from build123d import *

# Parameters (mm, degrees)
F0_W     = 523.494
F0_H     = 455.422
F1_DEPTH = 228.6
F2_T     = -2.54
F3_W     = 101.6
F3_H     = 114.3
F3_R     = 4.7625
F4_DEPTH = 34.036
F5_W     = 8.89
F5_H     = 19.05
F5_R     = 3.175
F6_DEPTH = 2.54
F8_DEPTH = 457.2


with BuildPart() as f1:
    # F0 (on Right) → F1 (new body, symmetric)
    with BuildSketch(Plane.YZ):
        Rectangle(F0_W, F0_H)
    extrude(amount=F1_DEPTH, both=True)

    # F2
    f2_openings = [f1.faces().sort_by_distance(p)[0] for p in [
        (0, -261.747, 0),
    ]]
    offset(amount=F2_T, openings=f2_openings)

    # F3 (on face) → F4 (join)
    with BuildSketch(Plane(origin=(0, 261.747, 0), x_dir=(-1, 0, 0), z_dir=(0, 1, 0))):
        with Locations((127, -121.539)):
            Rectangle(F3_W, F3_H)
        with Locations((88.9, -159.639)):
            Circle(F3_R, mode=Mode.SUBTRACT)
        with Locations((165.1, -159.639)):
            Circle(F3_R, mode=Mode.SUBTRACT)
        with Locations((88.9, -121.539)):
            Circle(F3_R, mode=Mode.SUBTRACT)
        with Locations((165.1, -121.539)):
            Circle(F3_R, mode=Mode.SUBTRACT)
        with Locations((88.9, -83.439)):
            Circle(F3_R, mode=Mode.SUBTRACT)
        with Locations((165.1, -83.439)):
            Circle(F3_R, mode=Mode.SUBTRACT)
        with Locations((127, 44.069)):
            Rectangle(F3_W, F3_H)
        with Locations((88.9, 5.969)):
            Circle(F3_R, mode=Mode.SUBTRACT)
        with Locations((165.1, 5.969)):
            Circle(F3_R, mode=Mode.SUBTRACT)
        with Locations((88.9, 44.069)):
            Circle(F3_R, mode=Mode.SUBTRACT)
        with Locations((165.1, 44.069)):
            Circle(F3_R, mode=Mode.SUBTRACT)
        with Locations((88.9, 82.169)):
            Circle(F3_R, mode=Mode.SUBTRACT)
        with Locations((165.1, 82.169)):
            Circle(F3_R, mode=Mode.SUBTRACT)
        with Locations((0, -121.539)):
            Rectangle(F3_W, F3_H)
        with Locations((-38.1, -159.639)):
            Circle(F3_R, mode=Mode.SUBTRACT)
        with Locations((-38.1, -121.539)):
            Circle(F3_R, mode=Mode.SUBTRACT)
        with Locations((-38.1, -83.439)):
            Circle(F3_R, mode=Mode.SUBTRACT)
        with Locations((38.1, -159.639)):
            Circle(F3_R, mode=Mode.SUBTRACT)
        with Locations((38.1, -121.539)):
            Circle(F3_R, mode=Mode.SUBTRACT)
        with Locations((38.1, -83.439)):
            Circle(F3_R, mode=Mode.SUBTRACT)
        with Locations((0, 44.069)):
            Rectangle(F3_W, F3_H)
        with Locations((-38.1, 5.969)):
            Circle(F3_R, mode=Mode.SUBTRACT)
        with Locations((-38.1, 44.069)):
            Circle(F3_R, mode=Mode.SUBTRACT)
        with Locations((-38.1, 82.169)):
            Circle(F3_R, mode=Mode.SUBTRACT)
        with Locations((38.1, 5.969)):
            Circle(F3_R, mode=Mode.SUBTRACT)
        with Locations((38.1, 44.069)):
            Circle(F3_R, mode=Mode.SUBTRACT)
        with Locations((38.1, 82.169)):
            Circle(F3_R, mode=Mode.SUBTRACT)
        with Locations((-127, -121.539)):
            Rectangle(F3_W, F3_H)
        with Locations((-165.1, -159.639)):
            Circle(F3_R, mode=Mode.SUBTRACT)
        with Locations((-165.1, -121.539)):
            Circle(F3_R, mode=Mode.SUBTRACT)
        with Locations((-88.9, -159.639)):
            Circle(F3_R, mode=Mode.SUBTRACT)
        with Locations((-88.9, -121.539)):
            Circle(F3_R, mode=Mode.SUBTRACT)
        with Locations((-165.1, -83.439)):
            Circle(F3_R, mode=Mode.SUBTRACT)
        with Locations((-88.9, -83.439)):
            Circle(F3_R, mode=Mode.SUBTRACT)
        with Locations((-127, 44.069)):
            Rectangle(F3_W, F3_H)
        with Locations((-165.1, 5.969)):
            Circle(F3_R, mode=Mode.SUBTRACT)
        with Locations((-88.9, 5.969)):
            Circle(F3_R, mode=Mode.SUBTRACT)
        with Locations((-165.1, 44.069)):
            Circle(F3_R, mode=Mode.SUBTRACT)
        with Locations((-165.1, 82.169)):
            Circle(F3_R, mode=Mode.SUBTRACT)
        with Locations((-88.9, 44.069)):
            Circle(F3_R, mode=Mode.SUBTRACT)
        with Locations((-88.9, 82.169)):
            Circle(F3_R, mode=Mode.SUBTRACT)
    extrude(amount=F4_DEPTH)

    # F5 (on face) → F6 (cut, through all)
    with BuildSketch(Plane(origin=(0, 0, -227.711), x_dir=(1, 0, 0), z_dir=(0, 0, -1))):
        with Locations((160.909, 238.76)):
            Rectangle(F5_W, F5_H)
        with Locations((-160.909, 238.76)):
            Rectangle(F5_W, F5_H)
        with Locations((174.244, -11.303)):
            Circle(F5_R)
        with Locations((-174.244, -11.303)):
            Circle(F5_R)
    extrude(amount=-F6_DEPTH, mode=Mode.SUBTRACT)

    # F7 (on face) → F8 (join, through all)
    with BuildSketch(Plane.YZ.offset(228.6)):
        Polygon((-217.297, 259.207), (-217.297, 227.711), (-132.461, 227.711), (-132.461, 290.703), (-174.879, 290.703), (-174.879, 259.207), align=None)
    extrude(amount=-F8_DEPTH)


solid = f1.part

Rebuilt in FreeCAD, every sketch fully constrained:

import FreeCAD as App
import Part
import Sketcher
from FreeCAD import Vector
Q = App.Units.Quantity


def faces_at(feature, points):
    """Names of the faces that lie closest to the given points."""
    faces = feature.Shape.Faces
    near = lambda p: min(range(len(faces)), key=lambda i: faces[i].distToShape(Part.Vertex(*p))[0])
    return sorted({f"Face{near(p) + 1}" for p in points})


def add_polygon(sketch, points):
    """Adds a closed chain of lines whose ends are joined by coincident constraints."""
    first, n = sketch.GeometryCount, len(points)
    for a, b in zip(points, points[1:] + points[:1]):
        sketch.addGeometry(Part.LineSegment(App.Vector(*a, 0), App.Vector(*b, 0)), False)
    for i in range(n):
        sketch.addConstraint(Sketcher.Constraint("Coincident", first + i, 2, first + (i + 1) % n, 1))

doc = App.newDocument("Part")
body = doc.addObject("PartDesign::Body", "Body")

sketch1 = body.newObject("Sketcher::SketchObject", "Sketch")
sketch1.AttachmentSupport = (doc.getObject("YZ_Plane"), [""])
sketch1.MapMode = "FlatFace"
add_polygon(sketch1, [(-262, 228), (-262, -228), (262, -228), (262, 228)])
sketch1.addConstraint(Sketcher.Constraint("Vertical", 0))
sketch1.addConstraint(Sketcher.Constraint("Horizontal", 1))
sketch1.addConstraint(Sketcher.Constraint("Vertical", 2))
sketch1.addConstraint(Sketcher.Constraint("Horizontal", 3))
sketch1.addConstraint(Sketcher.Constraint("Symmetric", 0, 2, 2, 2, -1, 1))
sketch1.addConstraint(Sketcher.Constraint("DistanceX", 1, 1, 1, 2, Q("20.61 in")))
sketch1.addConstraint(Sketcher.Constraint("DistanceY", 0, 2, 0, 1, Q("17.93 in")))
pad1 = body.newObject("PartDesign::Pad", "Pad")
pad1.Profile = sketch1
pad1.Length = Q("18 in")
pad1.Midplane = True
doc.recompute()

thickness = body.newObject("PartDesign::Thickness", "Thickness")
thickness.Base = (pad1, faces_at(pad1, [(0, -261.747, 0)]))
thickness.Value = Q("0.1 in")
thickness.Reversed = True
thickness.Join = "Arc"

sketch2 = body.newObject("Sketcher::SketchObject", "Sketch001")
sketch2.AttachmentSupport = (doc.getObject("XZ_Plane"), [""])
sketch2.MapMode = "FlatFace"
sketch2.AttachmentOffset = App.Placement(Vector(0, 0, -10.305 * 25.4), App.Rotation())
add_polygon(sketch2, [(-76.2, -64.4), (-76.2, -178.7), (-177.8, -178.7), (-177.8, -64.4)])
sketch2.addGeometry(Part.Circle(Vector(-88.9, -159.6, 0), Vector(0, 0, 1), 4.8), False)
sketch2.addGeometry(Part.Circle(Vector(-165.1, -159.6, 0), Vector(0, 0, 1), 4.8), False)
sketch2.addGeometry(Part.Circle(Vector(-88.9, -121.5, 0), Vector(0, 0, 1), 4.8), False)
sketch2.addGeometry(Part.Circle(Vector(-88.9, -83.4, 0), Vector(0, 0, 1), 4.8), False)
sketch2.addGeometry(Part.Circle(Vector(-165.1, -121.5, 0), Vector(0, 0, 1), 4.8), False)
sketch2.addGeometry(Part.Circle(Vector(-165.1, -83.4, 0), Vector(0, 0, 1), 4.8), False)
add_polygon(sketch2, [(-76.2, 101.2), (-76.2, -13.1), (-177.8, -13.1), (-177.8, 101.2)])
sketch2.addGeometry(Part.Circle(Vector(-88.9, 6, 0), Vector(0, 0, 1), 4.8), False)
sketch2.addGeometry(Part.Circle(Vector(-165.1, 6, 0), Vector(0, 0, 1), 4.8), False)
sketch2.addGeometry(Part.Circle(Vector(-88.9, 44.1, 0), Vector(0, 0, 1), 4.8), False)
sketch2.addGeometry(Part.Circle(Vector(-88.9, 82.2, 0), Vector(0, 0, 1), 4.8), False)
sketch2.addGeometry(Part.Circle(Vector(-165.1, 44.1, 0), Vector(0, 0, 1), 4.8), False)
sketch2.addGeometry(Part.Circle(Vector(-165.1, 82.2, 0), Vector(0, 0, 1), 4.8), False)
add_polygon(sketch2, [(50.8, -64.4), (50.8, -178.7), (-50.8, -178.7), (-50.8, -64.4)])
sketch2.addGeometry(Part.Circle(Vector(38.1, -159.6, 0), Vector(0, 0, 1), 4.8), False)
sketch2.addGeometry(Part.Circle(Vector(-38.1, -159.6, 0), Vector(0, 0, 1), 4.8), False)
sketch2.addGeometry(Part.Circle(Vector(38.1, -121.5, 0), Vector(0, 0, 1), 4.8), False)
sketch2.addGeometry(Part.Circle(Vector(38.1, -83.4, 0), Vector(0, 0, 1), 4.8), False)
sketch2.addGeometry(Part.Circle(Vector(-38.1, -121.5, 0), Vector(0, 0, 1), 4.8), False)
sketch2.addGeometry(Part.Circle(Vector(-38.1, -83.4, 0), Vector(0, 0, 1), 4.8), False)
add_polygon(sketch2, [(50.8, 101.2), (50.8, -13.1), (-50.8, -13.1), (-50.8, 101.2)])
sketch2.addGeometry(Part.Circle(Vector(38.1, 6, 0), Vector(0, 0, 1), 4.8), False)
sketch2.addGeometry(Part.Circle(Vector(-38.1, 6, 0), Vector(0, 0, 1), 4.8), False)
sketch2.addGeometry(Part.Circle(Vector(38.1, 44.1, 0), Vector(0, 0, 1), 4.8), False)
sketch2.addGeometry(Part.Circle(Vector(38.1, 82.2, 0), Vector(0, 0, 1), 4.8), False)
sketch2.addGeometry(Part.Circle(Vector(-38.1, 44.1, 0), Vector(0, 0, 1), 4.8), False)
sketch2.addGeometry(Part.Circle(Vector(-38.1, 82.2, 0), Vector(0, 0, 1), 4.8), False)
add_polygon(sketch2, [(177.8, -64.4), (177.8, -178.7), (76.2, -178.7), (76.2, -64.4)])
sketch2.addGeometry(Part.Circle(Vector(165.1, -159.6, 0), Vector(0, 0, 1), 4.8), False)
sketch2.addGeometry(Part.Circle(Vector(88.9, -159.6, 0), Vector(0, 0, 1), 4.8), False)
sketch2.addGeometry(Part.Circle(Vector(165.1, -121.5, 0), Vector(0, 0, 1), 4.8), False)
sketch2.addGeometry(Part.Circle(Vector(165.1, -83.4, 0), Vector(0, 0, 1), 4.8), False)
sketch2.addGeometry(Part.Circle(Vector(88.9, -121.5, 0), Vector(0, 0, 1), 4.8), False)
sketch2.addGeometry(Part.Circle(Vector(88.9, -83.4, 0), Vector(0, 0, 1), 4.8), False)
add_polygon(sketch2, [(177.8, 101.2), (177.8, -13.1), (76.2, -13.1), (76.2, 101.2)])
sketch2.addGeometry(Part.Circle(Vector(165.1, 6, 0), Vector(0, 0, 1), 4.8), False)
sketch2.addGeometry(Part.Circle(Vector(88.9, 6, 0), Vector(0, 0, 1), 4.8), False)
sketch2.addGeometry(Part.Circle(Vector(165.1, 44.1, 0), Vector(0, 0, 1), 4.8), False)
sketch2.addGeometry(Part.Circle(Vector(165.1, 82.2, 0), Vector(0, 0, 1), 4.8), False)
sketch2.addGeometry(Part.Circle(Vector(88.9, 44.1, 0), Vector(0, 0, 1), 4.8), False)
sketch2.addGeometry(Part.Circle(Vector(88.9, 82.2, 0), Vector(0, 0, 1), 4.8), False)
sketch2.addConstraint(Sketcher.Constraint("Vertical", 0))
sketch2.addConstraint(Sketcher.Constraint("Horizontal", 1))
sketch2.addConstraint(Sketcher.Constraint("Vertical", 2))
sketch2.addConstraint(Sketcher.Constraint("Horizontal", 3))
sketch2.addConstraint(Sketcher.Constraint("Vertical", 10))
sketch2.addConstraint(Sketcher.Constraint("Horizontal", 11))
sketch2.addConstraint(Sketcher.Constraint("Vertical", 12))
sketch2.addConstraint(Sketcher.Constraint("Horizontal", 13))
sketch2.addConstraint(Sketcher.Constraint("Vertical", 20))
sketch2.addConstraint(Sketcher.Constraint("Horizontal", 21))
sketch2.addConstraint(Sketcher.Constraint("Vertical", 22))
sketch2.addConstraint(Sketcher.Constraint("Horizontal", 23))
sketch2.addConstraint(Sketcher.Constraint("Vertical", 30))
sketch2.addConstraint(Sketcher.Constraint("Horizontal", 31))
sketch2.addConstraint(Sketcher.Constraint("Vertical", 32))
sketch2.addConstraint(Sketcher.Constraint("Horizontal", 33))
sketch2.addConstraint(Sketcher.Constraint("Vertical", 40))
sketch2.addConstraint(Sketcher.Constraint("Horizontal", 41))
sketch2.addConstraint(Sketcher.Constraint("Vertical", 42))
sketch2.addConstraint(Sketcher.Constraint("Horizontal", 43))
sketch2.addConstraint(Sketcher.Constraint("Vertical", 50))
sketch2.addConstraint(Sketcher.Constraint("Horizontal", 51))
sketch2.addConstraint(Sketcher.Constraint("Vertical", 52))
sketch2.addConstraint(Sketcher.Constraint("Horizontal", 53))
sketch2.addConstraint(Sketcher.Constraint("Equal", 4, 5))
sketch2.addConstraint(Sketcher.Constraint("Equal", 5, 6))
sketch2.addConstraint(Sketcher.Constraint("Equal", 6, 7))
sketch2.addConstraint(Sketcher.Constraint("Equal", 7, 8))
sketch2.addConstraint(Sketcher.Constraint("Equal", 8, 9))
sketch2.addConstraint(Sketcher.Constraint("Equal", 9, 14))
sketch2.addConstraint(Sketcher.Constraint("Equal", 14, 15))
sketch2.addConstraint(Sketcher.Constraint("Equal", 15, 16))
sketch2.addConstraint(Sketcher.Constraint("Equal", 16, 17))
sketch2.addConstraint(Sketcher.Constraint("Equal", 17, 18))
sketch2.addConstraint(Sketcher.Constraint("Equal", 18, 19))
sketch2.addConstraint(Sketcher.Constraint("Equal", 19, 24))
sketch2.addConstraint(Sketcher.Constraint("Equal", 24, 25))
sketch2.addConstraint(Sketcher.Constraint("Equal", 25, 26))
sketch2.addConstraint(Sketcher.Constraint("Equal", 26, 27))
sketch2.addConstraint(Sketcher.Constraint("Equal", 27, 28))
sketch2.addConstraint(Sketcher.Constraint("Equal", 28, 29))
sketch2.addConstraint(Sketcher.Constraint("Equal", 29, 34))
sketch2.addConstraint(Sketcher.Constraint("Equal", 34, 35))
sketch2.addConstraint(Sketcher.Constraint("Equal", 35, 36))
sketch2.addConstraint(Sketcher.Constraint("Equal", 36, 37))
sketch2.addConstraint(Sketcher.Constraint("Equal", 37, 38))
sketch2.addConstraint(Sketcher.Constraint("Equal", 38, 39))
sketch2.addConstraint(Sketcher.Constraint("Equal", 39, 44))
sketch2.addConstraint(Sketcher.Constraint("Equal", 44, 45))
sketch2.addConstraint(Sketcher.Constraint("Equal", 45, 46))
sketch2.addConstraint(Sketcher.Constraint("Equal", 46, 47))
sketch2.addConstraint(Sketcher.Constraint("Equal", 47, 48))
sketch2.addConstraint(Sketcher.Constraint("Equal", 48, 49))
sketch2.addConstraint(Sketcher.Constraint("Equal", 49, 54))
sketch2.addConstraint(Sketcher.Constraint("Equal", 54, 55))
sketch2.addConstraint(Sketcher.Constraint("Equal", 55, 56))
sketch2.addConstraint(Sketcher.Constraint("Equal", 56, 57))
sketch2.addConstraint(Sketcher.Constraint("Equal", 57, 58))
sketch2.addConstraint(Sketcher.Constraint("Equal", 58, 59))
sketch2.addConstraint(Sketcher.Constraint("Symmetric", 24, 3, 25, 3, -2))
sketch2.addConstraint(Sketcher.Constraint("Symmetric", 26, 3, 28, 3, -2))
sketch2.addConstraint(Sketcher.Constraint("Symmetric", 27, 3, 29, 3, -2))
sketch2.addConstraint(Sketcher.Constraint("Symmetric", 34, 3, 35, 3, -2))
sketch2.addConstraint(Sketcher.Constraint("Symmetric", 36, 3, 38, 3, -2))
sketch2.addConstraint(Sketcher.Constraint("Symmetric", 37, 3, 39, 3, -2))
sketch2.addConstraint(Sketcher.Constraint("Symmetric", 5, 3, 44, 3, -2))
sketch2.addConstraint(Sketcher.Constraint("Symmetric", 4, 3, 45, 3, -2))
sketch2.addConstraint(Sketcher.Constraint("Symmetric", 8, 3, 46, 3, -2))
sketch2.addConstraint(Sketcher.Constraint("Symmetric", 9, 3, 47, 3, -2))
sketch2.addConstraint(Sketcher.Constraint("Symmetric", 6, 3, 48, 3, -2))
sketch2.addConstraint(Sketcher.Constraint("Symmetric", 7, 3, 49, 3, -2))
sketch2.addConstraint(Sketcher.Constraint("Symmetric", 15, 3, 54, 3, -2))
sketch2.addConstraint(Sketcher.Constraint("Symmetric", 14, 3, 55, 3, -2))
sketch2.addConstraint(Sketcher.Constraint("Symmetric", 18, 3, 56, 3, -2))
sketch2.addConstraint(Sketcher.Constraint("Symmetric", 19, 3, 57, 3, -2))
sketch2.addConstraint(Sketcher.Constraint("Symmetric", 16, 3, 58, 3, -2))
sketch2.addConstraint(Sketcher.Constraint("Symmetric", 17, 3, 59, 3, -2))
sketch2.addConstraint(Sketcher.Constraint("Symmetric", 1, 2, 40, 2, -2))
sketch2.addConstraint(Sketcher.Constraint("Symmetric", 3, 2, 42, 2, -2))
sketch2.addConstraint(Sketcher.Constraint("Symmetric", 11, 2, 50, 2, -2))
sketch2.addConstraint(Sketcher.Constraint("Symmetric", 13, 2, 52, 2, -2))
sketch2.addConstraint(Sketcher.Constraint("Horizontal", 4, 3, 5, 3))
sketch2.addConstraint(Sketcher.Constraint("Horizontal", 6, 3, 8, 3))
sketch2.addConstraint(Sketcher.Constraint("Horizontal", 7, 3, 9, 3))
sketch2.addConstraint(Sketcher.Constraint("Horizontal", 14, 3, 15, 3))
sketch2.addConstraint(Sketcher.Constraint("Horizontal", 16, 3, 18, 3))
sketch2.addConstraint(Sketcher.Constraint("Horizontal", 17, 3, 19, 3))
sketch2.addConstraint(Sketcher.Constraint("Horizontal", 5, 3, 24, 3))
sketch2.addConstraint(Sketcher.Constraint("Horizontal", 8, 3, 26, 3))
sketch2.addConstraint(Sketcher.Constraint("Horizontal", 9, 3, 27, 3))
sketch2.addConstraint(Sketcher.Constraint("Horizontal", 15, 3, 34, 3))
sketch2.addConstraint(Sketcher.Constraint("Horizontal", 18, 3, 36, 3))
sketch2.addConstraint(Sketcher.Constraint("Horizontal", 19, 3, 37, 3))
sketch2.addConstraint(Sketcher.Constraint("Horizontal", 1, 2, 20, 2))
sketch2.addConstraint(Sketcher.Constraint("Horizontal", 3, 2, 22, 2))
sketch2.addConstraint(Sketcher.Constraint("Horizontal", 11, 2, 30, 2))
sketch2.addConstraint(Sketcher.Constraint("Horizontal", 13, 2, 32, 2))
sketch2.addConstraint(Sketcher.Constraint("Vertical", 4, 3, 6, 3))
sketch2.addConstraint(Sketcher.Constraint("Vertical", 6, 3, 7, 3))
sketch2.addConstraint(Sketcher.Constraint("Vertical", 5, 3, 8, 3))
sketch2.addConstraint(Sketcher.Constraint("Vertical", 8, 3, 9, 3))
sketch2.addConstraint(Sketcher.Constraint("Vertical", 7, 3, 14, 3))
sketch2.addConstraint(Sketcher.Constraint("Vertical", 9, 3, 15, 3))
sketch2.addConstraint(Sketcher.Constraint("Vertical", 14, 3, 16, 3))
sketch2.addConstraint(Sketcher.Constraint("Vertical", 16, 3, 17, 3))
sketch2.addConstraint(Sketcher.Constraint("Vertical", 15, 3, 18, 3))
sketch2.addConstraint(Sketcher.Constraint("Vertical", 18, 3, 19, 3))
sketch2.addConstraint(Sketcher.Constraint("Vertical", 24, 3, 26, 3))
sketch2.addConstraint(Sketcher.Constraint("Vertical", 26, 3, 27, 3))
sketch2.addConstraint(Sketcher.Constraint("Vertical", 27, 3, 34, 3))
sketch2.addConstraint(Sketcher.Constraint("Vertical", 34, 3, 36, 3))
sketch2.addConstraint(Sketcher.Constraint("Vertical", 36, 3, 37, 3))
sketch2.addConstraint(Sketcher.Constraint("Vertical", 3, 2, 10, 2))
sketch2.addConstraint(Sketcher.Constraint("Vertical", 2, 2, 11, 2))
sketch2.addConstraint(Sketcher.Constraint("Vertical", 23, 2, 30, 2))
sketch2.addConstraint(Sketcher.Constraint("Vertical", 22, 2, 31, 2))
sketch2.addConstraint(Sketcher.Constraint("Equal", 13, 21))
sketch2.addConstraint(Sketcher.Constraint("Equal", 2, 10))
sketch2.addConstraint(Sketcher.Constraint("DistanceX", 1, 2, 1, 1, Q("4 in")))
sketch2.addConstraint(Sketcher.Constraint("Diameter", 4, Q("0.375 in")))
sketch2.addConstraint(Sketcher.Constraint("DistanceY", 0, 2, 0, 1, Q("4.5 in")))
sketch2.addConstraint(Sketcher.Constraint("DistanceX", 0, 2, -1, 1, Q("3 in")))
sketch2.addConstraint(Sketcher.Constraint("DistanceX", -1, 1, 20, 2, Q("2 in")))
sketch2.addConstraint(Sketcher.Constraint("DistanceX", 5, 3, 4, 3, Q("3 in")))
sketch2.addConstraint(Sketcher.Constraint("DistanceY", 4, 3, 7, 3, Q("3 in")))
sketch2.addConstraint(Sketcher.Constraint("DistanceY", 14, 3, 17, 3, Q("3 in")))
sketch2.addConstraint(Sketcher.Constraint("DistanceX", 4, 3, 24, 3, Q("5 in")))
sketch2.addConstraint(Sketcher.Constraint("DistanceX", 4, 3, 25, 3, Q("2 in")))
sketch2.addConstraint(Sketcher.Constraint("DistanceY", 4, 3, 6, 3, Q("1.5 in")))
sketch2.addConstraint(Sketcher.Constraint("DistanceY", 14, 3, 16, 3, Q("1.5 in")))
sketch2.addConstraint(Sketcher.Constraint("DistanceY", 7, 3, 14, 3, Q("3.52 in")))
sketch2.addConstraint(Sketcher.Constraint("DistanceY", 0, 2, 4, 3, Q("0.75 in")))
sketch2.addConstraint(Sketcher.Constraint("DistanceY", 10, 2, 14, 3, Q("0.75 in")))
sketch2.addConstraint(Sketcher.Constraint("DistanceY", 4, 3, -1, 1, Q("6.285 in")))
pad2 = body.newObject("PartDesign::Pad", "Pad001")
pad2.Profile = sketch2
pad2.Length = Q("1.34 in")
pad2.Reversed = True

sketch3 = body.newObject("Sketcher::SketchObject", "Sketch002")
sketch3.AttachmentSupport = (doc.getObject("XY_Plane"), [""])
sketch3.MapMode = "FlatFace"
sketch3.AttachmentOffset = App.Placement(Vector(0, 0, -8.965 * 25.4), App.Rotation())
add_polygon(sketch3, [(156.5, -248.3), (156.5, -229.2), (165.4, -229.2), (165.4, -248.3)])
add_polygon(sketch3, [(-165.4, -248.3), (-165.4, -229.2), (-156.5, -229.2), (-156.5, -248.3)])
sketch3.addGeometry(Part.Circle(Vector(174.2, 11.3, 0), Vector(0, 0, 1), 3.2), False)
sketch3.addGeometry(Part.Circle(Vector(-174.2, 11.3, 0), Vector(0, 0, 1), 3.2), False)
sketch3.addConstraint(Sketcher.Constraint("Vertical", 0))
sketch3.addConstraint(Sketcher.Constraint("Horizontal", 1))
sketch3.addConstraint(Sketcher.Constraint("Vertical", 2))
sketch3.addConstraint(Sketcher.Constraint("Horizontal", 3))
sketch3.addConstraint(Sketcher.Constraint("Vertical", 4))
sketch3.addConstraint(Sketcher.Constraint("Horizontal", 5))
sketch3.addConstraint(Sketcher.Constraint("Vertical", 6))
sketch3.addConstraint(Sketcher.Constraint("Horizontal", 7))
sketch3.addConstraint(Sketcher.Constraint("Equal", 8, 9))
sketch3.addConstraint(Sketcher.Constraint("Symmetric", 8, 3, 9, 3, -2))
sketch3.addConstraint(Sketcher.Constraint("Symmetric", 1, 2, 4, 2, -2))
sketch3.addConstraint(Sketcher.Constraint("Symmetric", 3, 2, 6, 2, -2))
sketch3.addConstraint(Sketcher.Constraint("Diameter", 8, Q("0.25 in")))
sketch3.addConstraint(Sketcher.Constraint("DistanceX", 1, 1, 1, 2, Q("0.35 in")))
sketch3.addConstraint(Sketcher.Constraint("DistanceY", 0, 1, 0, 2, Q("0.75 in")))
sketch3.addConstraint(Sketcher.Constraint("DistanceX", 0, 2, 8, 3, Q("0.7 in")))
sketch3.addConstraint(Sketcher.Constraint("DistanceX", -1, 1, 8, 3, Q("6.86 in")))
sketch3.addConstraint(Sketcher.Constraint("DistanceY", 0, 2, 8, 3, Q("9.47 in")))
sketch3.addConstraint(Sketcher.Constraint("DistanceY", -1, 1, 8, 3, Q("0.445 in")))
pocket1 = body.newObject("PartDesign::Pocket", "Pocket")
pocket1.Profile = sketch3
pocket1.Length = Q("0.1 in")
pocket1.Reversed = True

sketch4 = body.newObject("Sketcher::SketchObject", "Sketch003")
sketch4.AttachmentSupport = (doc.getObject("YZ_Plane"), [""])
sketch4.MapMode = "FlatFace"
sketch4.AttachmentOffset = App.Placement(Vector(0, 0, 9 * 25.4), App.Rotation())
add_polygon(sketch4, [(-217, 259), (-217, 228), (-132, 228), (-132, 291), (-175, 291), (-175, 259)])
sketch4.addConstraint(Sketcher.Constraint("Vertical", 0))
sketch4.addConstraint(Sketcher.Constraint("Horizontal", 1))
sketch4.addConstraint(Sketcher.Constraint("Vertical", 2))
sketch4.addConstraint(Sketcher.Constraint("Horizontal", 3))
sketch4.addConstraint(Sketcher.Constraint("Vertical", 4))
sketch4.addConstraint(Sketcher.Constraint("Horizontal", 5))
sketch4.addConstraint(Sketcher.Constraint("Equal", 3, 5))
sketch4.addConstraint(Sketcher.Constraint("Equal", 0, 4))
sketch4.addConstraint(Sketcher.Constraint("DistanceX", 1, 1, 1, 2, Q("3.34 in")))
sketch4.addConstraint(Sketcher.Constraint("DistanceY", 0, 2, 0, 1, Q("1.24 in")))
sketch4.addConstraint(Sketcher.Constraint("DistanceX", 0, 2, -1, 1, Q("8.555 in")))
sketch4.addConstraint(Sketcher.Constraint("DistanceY", -1, 1, 0, 2, Q("8.965 in")))
pad3 = body.newObject("PartDesign::Pad", "Pad002")
pad3.Profile = sketch4
pad3.Length = Q("18 in")
pad3.Reversed = True

doc.recompute()
